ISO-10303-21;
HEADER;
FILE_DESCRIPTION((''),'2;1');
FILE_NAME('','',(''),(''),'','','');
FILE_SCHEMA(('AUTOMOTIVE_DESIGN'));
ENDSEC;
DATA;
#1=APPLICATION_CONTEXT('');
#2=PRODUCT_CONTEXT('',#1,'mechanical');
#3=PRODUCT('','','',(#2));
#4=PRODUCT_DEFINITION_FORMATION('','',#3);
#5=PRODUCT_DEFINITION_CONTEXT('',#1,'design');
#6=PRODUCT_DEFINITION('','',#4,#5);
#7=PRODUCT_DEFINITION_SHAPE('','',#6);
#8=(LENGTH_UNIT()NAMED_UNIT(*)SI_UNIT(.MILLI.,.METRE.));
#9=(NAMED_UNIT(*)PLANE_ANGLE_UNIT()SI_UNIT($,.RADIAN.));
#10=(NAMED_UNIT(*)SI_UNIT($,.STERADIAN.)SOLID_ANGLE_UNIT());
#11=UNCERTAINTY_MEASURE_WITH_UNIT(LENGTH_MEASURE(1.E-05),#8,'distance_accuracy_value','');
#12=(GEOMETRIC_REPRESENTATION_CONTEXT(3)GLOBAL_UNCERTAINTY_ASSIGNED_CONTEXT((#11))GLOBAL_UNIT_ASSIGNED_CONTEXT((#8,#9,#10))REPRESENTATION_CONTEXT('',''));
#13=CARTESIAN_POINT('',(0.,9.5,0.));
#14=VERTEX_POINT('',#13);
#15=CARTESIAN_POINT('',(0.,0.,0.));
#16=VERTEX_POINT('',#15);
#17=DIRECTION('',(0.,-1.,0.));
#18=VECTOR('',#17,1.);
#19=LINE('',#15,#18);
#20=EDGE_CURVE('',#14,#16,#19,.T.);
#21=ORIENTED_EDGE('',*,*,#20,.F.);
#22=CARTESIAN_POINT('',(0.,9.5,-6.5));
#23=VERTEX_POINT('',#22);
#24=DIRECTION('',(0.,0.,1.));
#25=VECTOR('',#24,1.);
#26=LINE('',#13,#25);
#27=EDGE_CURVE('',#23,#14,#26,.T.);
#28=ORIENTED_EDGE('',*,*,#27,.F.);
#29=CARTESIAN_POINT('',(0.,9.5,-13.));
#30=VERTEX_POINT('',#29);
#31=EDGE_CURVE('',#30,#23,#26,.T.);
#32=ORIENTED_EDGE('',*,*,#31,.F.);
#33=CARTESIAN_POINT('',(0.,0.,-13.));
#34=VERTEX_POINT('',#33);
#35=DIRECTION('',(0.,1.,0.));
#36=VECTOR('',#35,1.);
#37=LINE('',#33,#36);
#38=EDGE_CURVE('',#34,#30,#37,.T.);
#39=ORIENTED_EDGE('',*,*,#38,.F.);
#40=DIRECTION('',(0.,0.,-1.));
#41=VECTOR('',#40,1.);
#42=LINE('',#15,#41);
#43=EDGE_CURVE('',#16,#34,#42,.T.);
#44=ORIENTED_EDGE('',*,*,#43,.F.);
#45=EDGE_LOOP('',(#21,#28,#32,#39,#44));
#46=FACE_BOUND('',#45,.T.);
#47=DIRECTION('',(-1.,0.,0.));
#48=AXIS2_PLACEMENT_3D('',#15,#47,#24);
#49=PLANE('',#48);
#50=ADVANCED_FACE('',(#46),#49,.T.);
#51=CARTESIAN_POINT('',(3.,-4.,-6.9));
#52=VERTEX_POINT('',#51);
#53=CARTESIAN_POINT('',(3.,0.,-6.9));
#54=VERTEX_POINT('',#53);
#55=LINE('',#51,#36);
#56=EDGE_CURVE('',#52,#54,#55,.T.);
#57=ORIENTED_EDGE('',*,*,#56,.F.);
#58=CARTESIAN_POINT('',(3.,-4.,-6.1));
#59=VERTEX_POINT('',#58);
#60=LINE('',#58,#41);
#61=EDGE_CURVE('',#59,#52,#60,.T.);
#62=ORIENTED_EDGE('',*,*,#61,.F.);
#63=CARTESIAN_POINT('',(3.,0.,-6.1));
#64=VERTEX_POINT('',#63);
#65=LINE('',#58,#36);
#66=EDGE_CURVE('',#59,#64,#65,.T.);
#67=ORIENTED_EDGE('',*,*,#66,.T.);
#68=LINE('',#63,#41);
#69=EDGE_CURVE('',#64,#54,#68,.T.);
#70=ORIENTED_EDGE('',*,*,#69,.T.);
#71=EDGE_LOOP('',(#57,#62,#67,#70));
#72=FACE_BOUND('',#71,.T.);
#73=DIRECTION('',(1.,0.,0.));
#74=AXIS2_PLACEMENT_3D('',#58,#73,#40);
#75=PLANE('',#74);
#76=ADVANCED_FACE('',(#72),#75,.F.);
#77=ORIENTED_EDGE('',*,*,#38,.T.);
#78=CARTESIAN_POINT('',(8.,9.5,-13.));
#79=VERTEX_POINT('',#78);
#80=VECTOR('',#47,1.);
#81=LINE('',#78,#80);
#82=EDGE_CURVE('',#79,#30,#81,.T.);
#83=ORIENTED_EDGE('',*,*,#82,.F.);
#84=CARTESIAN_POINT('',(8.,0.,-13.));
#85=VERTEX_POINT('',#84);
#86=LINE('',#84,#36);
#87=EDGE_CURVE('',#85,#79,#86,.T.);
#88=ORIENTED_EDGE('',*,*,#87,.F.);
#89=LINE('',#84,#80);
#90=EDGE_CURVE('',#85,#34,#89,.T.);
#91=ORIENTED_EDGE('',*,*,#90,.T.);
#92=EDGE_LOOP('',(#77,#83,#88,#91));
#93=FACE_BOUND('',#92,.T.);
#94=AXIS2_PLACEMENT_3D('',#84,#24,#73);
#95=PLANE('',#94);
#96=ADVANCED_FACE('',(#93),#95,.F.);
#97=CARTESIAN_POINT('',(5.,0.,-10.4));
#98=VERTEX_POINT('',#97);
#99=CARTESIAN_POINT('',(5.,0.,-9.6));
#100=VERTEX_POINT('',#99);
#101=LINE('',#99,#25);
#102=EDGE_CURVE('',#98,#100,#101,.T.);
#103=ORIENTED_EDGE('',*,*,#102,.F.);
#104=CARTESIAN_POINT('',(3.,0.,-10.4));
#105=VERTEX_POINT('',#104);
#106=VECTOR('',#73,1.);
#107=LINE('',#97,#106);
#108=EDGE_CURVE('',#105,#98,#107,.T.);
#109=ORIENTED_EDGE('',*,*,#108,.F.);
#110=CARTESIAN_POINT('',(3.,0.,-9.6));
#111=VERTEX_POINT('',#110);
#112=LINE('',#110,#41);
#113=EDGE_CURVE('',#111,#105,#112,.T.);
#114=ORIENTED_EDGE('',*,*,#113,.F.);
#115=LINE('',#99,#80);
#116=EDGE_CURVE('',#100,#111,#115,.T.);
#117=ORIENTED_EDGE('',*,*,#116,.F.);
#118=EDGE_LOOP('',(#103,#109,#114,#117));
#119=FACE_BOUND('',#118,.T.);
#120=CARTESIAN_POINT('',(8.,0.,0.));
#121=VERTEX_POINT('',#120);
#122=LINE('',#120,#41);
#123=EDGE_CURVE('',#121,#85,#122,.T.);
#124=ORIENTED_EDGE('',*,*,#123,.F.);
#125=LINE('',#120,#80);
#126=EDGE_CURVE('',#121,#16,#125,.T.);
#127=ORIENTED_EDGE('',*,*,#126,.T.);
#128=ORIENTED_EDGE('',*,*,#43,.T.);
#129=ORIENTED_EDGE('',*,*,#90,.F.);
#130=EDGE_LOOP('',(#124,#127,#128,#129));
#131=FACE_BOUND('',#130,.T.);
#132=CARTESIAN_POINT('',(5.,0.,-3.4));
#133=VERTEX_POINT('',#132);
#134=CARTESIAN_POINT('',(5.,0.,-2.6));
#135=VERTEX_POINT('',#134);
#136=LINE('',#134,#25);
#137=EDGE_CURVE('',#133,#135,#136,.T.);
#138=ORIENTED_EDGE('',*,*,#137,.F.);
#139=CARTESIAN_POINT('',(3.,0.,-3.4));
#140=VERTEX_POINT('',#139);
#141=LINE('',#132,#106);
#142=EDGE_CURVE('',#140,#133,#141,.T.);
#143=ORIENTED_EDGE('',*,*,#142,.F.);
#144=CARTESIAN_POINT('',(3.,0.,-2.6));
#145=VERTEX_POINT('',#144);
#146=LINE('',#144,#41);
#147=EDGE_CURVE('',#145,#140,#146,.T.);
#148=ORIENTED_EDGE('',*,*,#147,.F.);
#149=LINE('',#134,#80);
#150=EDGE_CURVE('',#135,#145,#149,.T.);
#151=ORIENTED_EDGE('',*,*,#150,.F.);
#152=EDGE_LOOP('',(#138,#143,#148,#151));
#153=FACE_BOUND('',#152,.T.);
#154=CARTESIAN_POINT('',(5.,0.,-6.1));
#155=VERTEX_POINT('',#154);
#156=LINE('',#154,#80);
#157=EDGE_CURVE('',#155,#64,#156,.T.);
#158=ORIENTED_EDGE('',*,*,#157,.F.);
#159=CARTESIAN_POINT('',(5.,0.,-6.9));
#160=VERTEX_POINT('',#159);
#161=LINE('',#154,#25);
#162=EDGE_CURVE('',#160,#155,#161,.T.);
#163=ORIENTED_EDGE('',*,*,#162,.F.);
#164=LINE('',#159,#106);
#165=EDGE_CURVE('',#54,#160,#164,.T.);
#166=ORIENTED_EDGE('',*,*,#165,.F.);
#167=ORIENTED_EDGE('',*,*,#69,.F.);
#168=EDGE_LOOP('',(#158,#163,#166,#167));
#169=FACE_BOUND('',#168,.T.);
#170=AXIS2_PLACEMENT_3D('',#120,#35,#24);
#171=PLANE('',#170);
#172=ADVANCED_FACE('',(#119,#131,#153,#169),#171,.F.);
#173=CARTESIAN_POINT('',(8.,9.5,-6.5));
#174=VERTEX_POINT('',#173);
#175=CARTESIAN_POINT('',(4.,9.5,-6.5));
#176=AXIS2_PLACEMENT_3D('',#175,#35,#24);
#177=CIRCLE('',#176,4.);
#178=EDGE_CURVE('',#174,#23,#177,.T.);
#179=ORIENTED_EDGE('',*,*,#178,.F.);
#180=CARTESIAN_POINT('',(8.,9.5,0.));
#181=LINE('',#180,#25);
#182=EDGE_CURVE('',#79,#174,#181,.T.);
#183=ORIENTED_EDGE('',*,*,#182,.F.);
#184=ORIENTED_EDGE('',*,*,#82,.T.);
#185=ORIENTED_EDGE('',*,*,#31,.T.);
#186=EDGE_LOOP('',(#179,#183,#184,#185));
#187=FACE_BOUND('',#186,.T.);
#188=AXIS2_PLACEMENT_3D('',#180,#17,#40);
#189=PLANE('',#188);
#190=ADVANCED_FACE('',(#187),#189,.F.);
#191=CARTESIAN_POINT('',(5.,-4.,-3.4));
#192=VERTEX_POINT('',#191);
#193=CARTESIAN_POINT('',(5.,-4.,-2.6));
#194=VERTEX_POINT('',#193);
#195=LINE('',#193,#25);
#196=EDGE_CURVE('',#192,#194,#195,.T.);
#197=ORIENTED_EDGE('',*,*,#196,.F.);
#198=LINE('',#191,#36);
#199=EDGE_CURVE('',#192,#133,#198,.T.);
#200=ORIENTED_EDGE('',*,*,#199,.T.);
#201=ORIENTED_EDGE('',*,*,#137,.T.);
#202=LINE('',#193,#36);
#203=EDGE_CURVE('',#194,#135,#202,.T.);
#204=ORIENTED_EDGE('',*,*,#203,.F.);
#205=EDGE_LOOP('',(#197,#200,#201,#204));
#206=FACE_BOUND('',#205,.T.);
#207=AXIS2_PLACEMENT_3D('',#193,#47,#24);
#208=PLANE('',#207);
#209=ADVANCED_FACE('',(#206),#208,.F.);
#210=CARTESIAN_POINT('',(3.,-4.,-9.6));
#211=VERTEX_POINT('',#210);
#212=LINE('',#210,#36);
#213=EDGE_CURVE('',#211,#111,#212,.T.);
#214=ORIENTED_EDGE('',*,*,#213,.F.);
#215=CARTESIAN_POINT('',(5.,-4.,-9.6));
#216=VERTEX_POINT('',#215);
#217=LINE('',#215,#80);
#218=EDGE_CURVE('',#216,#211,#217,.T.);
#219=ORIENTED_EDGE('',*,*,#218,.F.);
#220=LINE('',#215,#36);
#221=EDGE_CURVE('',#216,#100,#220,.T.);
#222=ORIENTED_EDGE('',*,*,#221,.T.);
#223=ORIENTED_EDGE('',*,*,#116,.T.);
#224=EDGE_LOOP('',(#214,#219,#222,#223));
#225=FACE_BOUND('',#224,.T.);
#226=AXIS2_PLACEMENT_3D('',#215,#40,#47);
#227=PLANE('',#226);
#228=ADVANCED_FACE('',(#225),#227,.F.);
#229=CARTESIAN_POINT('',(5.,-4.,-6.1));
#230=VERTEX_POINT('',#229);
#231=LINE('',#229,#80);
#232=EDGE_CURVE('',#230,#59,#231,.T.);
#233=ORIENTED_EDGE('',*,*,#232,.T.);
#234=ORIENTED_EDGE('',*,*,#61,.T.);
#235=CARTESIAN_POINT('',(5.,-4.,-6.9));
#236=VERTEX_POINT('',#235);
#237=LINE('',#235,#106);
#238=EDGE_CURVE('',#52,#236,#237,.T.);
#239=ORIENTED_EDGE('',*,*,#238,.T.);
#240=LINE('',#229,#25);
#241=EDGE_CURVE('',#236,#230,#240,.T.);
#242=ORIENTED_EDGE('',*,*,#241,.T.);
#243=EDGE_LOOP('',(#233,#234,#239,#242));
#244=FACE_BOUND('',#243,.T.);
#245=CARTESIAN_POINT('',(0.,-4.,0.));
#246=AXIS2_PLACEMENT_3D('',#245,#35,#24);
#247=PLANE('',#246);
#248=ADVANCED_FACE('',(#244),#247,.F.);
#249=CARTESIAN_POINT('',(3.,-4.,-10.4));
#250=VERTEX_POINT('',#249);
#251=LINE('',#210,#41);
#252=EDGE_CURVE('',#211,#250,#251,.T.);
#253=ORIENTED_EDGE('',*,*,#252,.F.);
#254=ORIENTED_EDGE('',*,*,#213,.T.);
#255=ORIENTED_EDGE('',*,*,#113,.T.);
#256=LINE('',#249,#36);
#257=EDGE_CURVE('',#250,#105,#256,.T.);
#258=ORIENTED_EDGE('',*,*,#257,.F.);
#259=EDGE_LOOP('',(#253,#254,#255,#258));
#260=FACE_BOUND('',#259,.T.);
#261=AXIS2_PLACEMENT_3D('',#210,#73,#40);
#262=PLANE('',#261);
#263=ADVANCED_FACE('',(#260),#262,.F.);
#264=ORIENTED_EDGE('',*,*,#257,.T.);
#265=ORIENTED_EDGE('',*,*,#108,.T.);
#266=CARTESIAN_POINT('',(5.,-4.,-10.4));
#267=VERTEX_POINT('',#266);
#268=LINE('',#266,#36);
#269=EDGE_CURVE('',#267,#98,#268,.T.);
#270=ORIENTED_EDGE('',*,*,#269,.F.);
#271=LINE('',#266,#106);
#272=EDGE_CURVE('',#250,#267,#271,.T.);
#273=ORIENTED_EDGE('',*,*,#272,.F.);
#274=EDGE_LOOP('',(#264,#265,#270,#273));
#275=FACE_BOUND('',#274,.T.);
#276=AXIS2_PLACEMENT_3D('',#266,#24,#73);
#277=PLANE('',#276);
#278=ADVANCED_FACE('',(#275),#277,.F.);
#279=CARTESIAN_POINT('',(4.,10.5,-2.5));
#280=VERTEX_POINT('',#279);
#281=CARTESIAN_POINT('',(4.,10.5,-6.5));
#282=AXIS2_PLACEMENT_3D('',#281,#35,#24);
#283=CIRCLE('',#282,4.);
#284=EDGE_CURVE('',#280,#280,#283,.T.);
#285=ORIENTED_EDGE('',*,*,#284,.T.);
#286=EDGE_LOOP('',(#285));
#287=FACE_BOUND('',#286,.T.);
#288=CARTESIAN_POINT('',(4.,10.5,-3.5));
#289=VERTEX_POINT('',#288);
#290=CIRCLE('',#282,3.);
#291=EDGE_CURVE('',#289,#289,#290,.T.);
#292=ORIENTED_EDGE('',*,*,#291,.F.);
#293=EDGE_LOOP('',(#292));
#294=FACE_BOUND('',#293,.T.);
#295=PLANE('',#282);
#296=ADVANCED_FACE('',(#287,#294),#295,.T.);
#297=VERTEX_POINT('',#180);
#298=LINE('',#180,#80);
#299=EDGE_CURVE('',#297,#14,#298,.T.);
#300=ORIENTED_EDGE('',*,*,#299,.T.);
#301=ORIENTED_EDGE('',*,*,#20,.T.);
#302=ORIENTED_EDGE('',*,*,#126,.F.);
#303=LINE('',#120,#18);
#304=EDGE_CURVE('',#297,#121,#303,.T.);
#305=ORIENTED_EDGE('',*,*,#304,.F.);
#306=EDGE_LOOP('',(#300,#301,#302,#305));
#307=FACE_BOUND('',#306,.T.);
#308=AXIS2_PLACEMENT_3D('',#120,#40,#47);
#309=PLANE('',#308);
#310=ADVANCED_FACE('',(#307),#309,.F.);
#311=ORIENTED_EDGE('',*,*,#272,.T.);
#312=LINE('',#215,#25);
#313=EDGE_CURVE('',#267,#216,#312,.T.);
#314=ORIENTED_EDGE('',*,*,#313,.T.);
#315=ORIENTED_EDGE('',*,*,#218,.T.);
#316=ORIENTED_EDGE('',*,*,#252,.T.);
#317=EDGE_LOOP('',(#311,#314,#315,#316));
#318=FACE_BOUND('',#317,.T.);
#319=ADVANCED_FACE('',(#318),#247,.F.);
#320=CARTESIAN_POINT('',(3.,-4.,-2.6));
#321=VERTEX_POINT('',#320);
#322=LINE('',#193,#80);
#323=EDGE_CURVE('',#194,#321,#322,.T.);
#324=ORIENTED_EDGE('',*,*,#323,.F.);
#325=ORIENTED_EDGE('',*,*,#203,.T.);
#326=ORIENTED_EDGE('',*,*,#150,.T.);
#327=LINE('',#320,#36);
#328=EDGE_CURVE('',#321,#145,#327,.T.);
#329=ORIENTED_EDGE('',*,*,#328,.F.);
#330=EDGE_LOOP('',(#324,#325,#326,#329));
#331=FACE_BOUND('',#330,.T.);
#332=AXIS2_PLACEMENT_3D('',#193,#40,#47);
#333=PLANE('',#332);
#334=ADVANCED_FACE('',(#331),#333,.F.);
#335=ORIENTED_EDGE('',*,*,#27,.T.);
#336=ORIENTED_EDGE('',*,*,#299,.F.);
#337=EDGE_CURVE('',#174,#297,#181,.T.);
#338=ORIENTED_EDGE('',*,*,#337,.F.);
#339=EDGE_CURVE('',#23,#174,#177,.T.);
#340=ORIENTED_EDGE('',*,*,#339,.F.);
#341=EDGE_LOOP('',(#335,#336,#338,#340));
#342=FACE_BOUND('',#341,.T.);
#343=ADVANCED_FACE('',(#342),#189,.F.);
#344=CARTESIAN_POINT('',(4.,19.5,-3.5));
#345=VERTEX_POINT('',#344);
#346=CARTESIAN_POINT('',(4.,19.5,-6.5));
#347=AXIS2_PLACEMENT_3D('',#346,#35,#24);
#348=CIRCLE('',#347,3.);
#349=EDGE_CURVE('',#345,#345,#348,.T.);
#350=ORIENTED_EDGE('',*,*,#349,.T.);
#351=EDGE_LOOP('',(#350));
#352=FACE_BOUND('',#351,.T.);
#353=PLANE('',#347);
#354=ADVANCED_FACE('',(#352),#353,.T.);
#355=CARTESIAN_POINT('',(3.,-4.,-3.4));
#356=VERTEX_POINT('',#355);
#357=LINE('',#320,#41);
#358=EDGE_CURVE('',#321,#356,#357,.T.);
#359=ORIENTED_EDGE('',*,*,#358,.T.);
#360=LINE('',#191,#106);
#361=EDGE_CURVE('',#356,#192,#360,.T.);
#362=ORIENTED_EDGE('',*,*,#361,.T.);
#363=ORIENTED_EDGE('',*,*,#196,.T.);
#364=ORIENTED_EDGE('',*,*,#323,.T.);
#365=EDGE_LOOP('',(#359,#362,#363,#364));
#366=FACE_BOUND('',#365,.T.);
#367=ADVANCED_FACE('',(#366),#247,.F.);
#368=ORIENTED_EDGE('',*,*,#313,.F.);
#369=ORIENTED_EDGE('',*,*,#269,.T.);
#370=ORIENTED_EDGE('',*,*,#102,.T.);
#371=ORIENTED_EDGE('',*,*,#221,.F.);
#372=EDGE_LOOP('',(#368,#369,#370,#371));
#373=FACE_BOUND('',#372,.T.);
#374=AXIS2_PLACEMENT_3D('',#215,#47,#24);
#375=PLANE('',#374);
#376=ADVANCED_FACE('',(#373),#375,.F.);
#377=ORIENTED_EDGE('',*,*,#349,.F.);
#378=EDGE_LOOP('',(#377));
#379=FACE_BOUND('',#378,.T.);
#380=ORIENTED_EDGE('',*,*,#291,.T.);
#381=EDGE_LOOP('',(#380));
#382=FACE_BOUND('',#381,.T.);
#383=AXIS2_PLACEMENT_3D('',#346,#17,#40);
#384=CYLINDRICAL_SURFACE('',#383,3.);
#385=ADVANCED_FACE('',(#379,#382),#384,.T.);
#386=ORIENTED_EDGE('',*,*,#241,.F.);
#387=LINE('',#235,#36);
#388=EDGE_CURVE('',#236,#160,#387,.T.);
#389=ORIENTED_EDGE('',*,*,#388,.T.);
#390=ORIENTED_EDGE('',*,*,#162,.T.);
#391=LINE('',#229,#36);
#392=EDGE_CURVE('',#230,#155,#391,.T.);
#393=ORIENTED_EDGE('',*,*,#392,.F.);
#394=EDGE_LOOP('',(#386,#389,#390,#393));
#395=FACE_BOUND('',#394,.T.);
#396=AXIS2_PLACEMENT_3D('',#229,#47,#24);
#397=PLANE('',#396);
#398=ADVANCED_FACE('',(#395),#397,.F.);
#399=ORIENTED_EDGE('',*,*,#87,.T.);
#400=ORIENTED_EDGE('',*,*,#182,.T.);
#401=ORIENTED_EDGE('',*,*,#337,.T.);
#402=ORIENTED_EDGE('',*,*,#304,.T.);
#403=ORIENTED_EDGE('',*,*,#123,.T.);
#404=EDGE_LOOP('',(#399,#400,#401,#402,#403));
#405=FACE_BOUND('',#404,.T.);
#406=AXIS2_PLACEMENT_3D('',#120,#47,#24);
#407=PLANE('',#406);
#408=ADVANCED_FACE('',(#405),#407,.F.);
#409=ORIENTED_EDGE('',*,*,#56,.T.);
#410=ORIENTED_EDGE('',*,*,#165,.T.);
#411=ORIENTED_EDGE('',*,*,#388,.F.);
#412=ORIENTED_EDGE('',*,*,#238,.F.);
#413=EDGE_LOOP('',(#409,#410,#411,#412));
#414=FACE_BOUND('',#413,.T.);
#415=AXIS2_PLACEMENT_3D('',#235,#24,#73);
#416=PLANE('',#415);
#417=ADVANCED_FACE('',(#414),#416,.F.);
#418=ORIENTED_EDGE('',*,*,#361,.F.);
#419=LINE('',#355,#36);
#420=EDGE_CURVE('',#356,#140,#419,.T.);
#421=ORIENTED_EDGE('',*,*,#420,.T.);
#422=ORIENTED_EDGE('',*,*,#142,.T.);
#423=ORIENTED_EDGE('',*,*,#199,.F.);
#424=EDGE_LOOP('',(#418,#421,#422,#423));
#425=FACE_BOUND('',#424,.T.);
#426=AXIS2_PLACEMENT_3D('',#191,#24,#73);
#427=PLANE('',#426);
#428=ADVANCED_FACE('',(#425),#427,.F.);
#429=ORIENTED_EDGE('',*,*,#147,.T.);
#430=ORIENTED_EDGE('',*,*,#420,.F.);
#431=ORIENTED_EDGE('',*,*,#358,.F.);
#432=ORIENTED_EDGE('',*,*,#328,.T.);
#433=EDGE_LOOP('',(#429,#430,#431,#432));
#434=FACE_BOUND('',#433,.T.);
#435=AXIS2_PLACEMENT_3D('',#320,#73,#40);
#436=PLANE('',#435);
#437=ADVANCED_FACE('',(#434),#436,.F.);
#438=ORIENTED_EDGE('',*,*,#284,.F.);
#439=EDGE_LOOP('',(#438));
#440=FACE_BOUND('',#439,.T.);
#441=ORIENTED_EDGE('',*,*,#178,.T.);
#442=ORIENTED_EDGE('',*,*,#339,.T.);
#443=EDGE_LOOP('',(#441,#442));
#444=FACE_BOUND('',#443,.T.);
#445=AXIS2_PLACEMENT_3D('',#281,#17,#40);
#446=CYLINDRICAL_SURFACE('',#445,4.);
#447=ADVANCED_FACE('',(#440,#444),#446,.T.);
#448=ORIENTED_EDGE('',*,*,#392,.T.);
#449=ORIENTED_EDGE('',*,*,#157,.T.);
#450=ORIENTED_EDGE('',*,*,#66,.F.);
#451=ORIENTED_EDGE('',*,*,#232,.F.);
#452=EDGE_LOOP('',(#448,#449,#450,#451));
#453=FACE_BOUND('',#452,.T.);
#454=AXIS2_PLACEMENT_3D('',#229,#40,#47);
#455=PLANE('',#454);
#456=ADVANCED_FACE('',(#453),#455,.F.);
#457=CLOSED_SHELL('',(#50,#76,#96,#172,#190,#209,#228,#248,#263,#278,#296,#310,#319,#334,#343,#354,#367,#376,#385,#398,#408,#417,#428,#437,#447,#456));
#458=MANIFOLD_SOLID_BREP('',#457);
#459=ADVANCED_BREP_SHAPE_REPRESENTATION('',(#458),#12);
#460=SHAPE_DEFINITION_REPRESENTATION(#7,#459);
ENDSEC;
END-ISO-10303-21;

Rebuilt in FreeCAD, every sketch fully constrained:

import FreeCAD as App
import Part
import Sketcher

V = App.Vector
Q = App.Units.Quantity

doc = App.newDocument("Part")
body = doc.addObject("PartDesign::Body", "Body")

# Sketch on YZ plane
sketch1 = body.newObject("Sketcher::SketchObject", "Sketch")
sketch1.AttachmentSupport = (doc.getObject("YZ_Plane"), [""])
sketch1.MapMode = "FlatFace"
sketch1.addGeometry([
    Part.LineSegment(V(10, 0, 0), V(0, 0, 0)),
    Part.LineSegment(V(0, 0, 0), V(0, -13, 0)),
    Part.LineSegment(V(0, -13, 0), V(10, -13, 0)),
    Part.LineSegment(V(10, -13, 0), V(10, 0, 0)),
], False)
sketch1.addConstraint([
    Sketcher.Constraint("Coincident", 0, 2, 1, 1),
    Sketcher.Constraint("Coincident", 1, 2, 2, 1),
    Sketcher.Constraint("Coincident", 2, 2, 3, 1),
    Sketcher.Constraint("Coincident", 3, 2, 0, 1),
    Sketcher.Constraint("Horizontal", 0),
    Sketcher.Constraint("Vertical", 1),
    Sketcher.Constraint("Horizontal", 2),
    Sketcher.Constraint("Vertical", 3),
    Sketcher.Constraint("Coincident", 0, 2, -1, 1),
    Sketcher.Constraint("DistanceY", 1, 2, 1, 1, Q("13 mm")),
    Sketcher.Constraint("DistanceX", 0, 2, 0, 1, Q("9.5 mm")),
])
pad1 = body.newObject("PartDesign::Pad", "Pad")
pad1.Profile = sketch1
pad1.Length = 8

# Sketch on XZ plane
sketch2 = body.newObject("Sketcher::SketchObject", "Sketch001")
sketch2.AttachmentSupport = (doc.getObject("XZ_Plane"), [""])
sketch2.MapMode = "FlatFace"
sketch2.AttachmentOffset = App.Placement(V(0, 0, -9.5), App.Rotation())
sketch2.addGeometry(Part.Circle(V(4, -6.5, 0), V(0, 0, 1), 4), False)
sketch2.addConstraint([
    Sketcher.Constraint("Diameter", 0, Q("8 mm")),
    Sketcher.Constraint("DistanceX", -1, 1, 0, 3, Q("4 mm")),
    Sketcher.Constraint("DistanceY", 0, 3, -1, 1, Q("6.5 mm")),
])
pad2 = body.newObject("PartDesign::Pad", "Pad001")
pad2.Profile = sketch2
pad2.Length = 1
pad2.Reversed = True

# Sketch on XZ plane
sketch3 = body.newObject("Sketcher::SketchObject", "Sketch002")
sketch3.AttachmentSupport = (doc.getObject("XZ_Plane"), [""])
sketch3.MapMode = "FlatFace"
sketch3.AttachmentOffset = App.Placement(V(0, 0, -10.5), App.Rotation())
sketch3.addGeometry(Part.Circle(V(4, -6.5, 0), V(0, 0, 1), 3), False)
sketch3.addConstraint([
    Sketcher.Constraint("Diameter", 0, Q("6 mm")),
    Sketcher.Constraint("DistanceX", -1, 1, 0, 3, Q("4 mm")),
    Sketcher.Constraint("DistanceY", 0, 3, -1, 1, Q("6.5 mm")),
])
pad3 = body.newObject("PartDesign::Pad", "Pad002")
pad3.Profile = sketch3
pad3.Length = 9
pad3.Reversed = True

# Sketch on XZ plane
sketch4 = body.newObject("Sketcher::SketchObject", "Sketch003")
sketch4.AttachmentSupport = (doc.getObject("XZ_Plane"), [""])
sketch4.MapMode = "FlatFace"
sketch4.addGeometry([
    Part.LineSegment(V(3, -2.6, 0), V(3, -3.4, 0)),  # 0
    Part.LineSegment(V(3, -3.4, 0), V(5, -3.4, 0)),  # 1
    Part.LineSegment(V(5, -3.4, 0), V(5, -2.6, 0)),  # 2
    Part.LineSegment(V(5, -2.6, 0), V(3, -2.6, 0)),  # 3
    Part.LineSegment(V(3, -6.1, 0), V(3, -6.9, 0)),  # 4
    Part.LineSegment(V(3, -6.9, 0), V(5, -6.9, 0)),  # 5
    Part.LineSegment(V(5, -6.9, 0), V(5, -6.1, 0)),  # 6
    Part.LineSegment(V(5, -6.1, 0), V(3, -6.1, 0)),  # 7
    Part.LineSegment(V(3, -9.6, 0), V(3, -10.4, 0)),  # 8
    Part.LineSegment(V(3, -10.4, 0), V(5, -10.4, 0)),  # 9
    Part.LineSegment(V(5, -10.4, 0), V(5, -9.6, 0)),  # 10
    Part.LineSegment(V(5, -9.6, 0), V(3, -9.6, 0)),  # 11
], False)
sketch4.addConstraint([
    Sketcher.Constraint("Coincident", 0, 2, 1, 1),
    Sketcher.Constraint("Coincident", 1, 2, 2, 1),
    Sketcher.Constraint("Coincident", 2, 2, 3, 1),
    Sketcher.Constraint("Coincident", 3, 2, 0, 1),
    Sketcher.Constraint("Coincident", 4, 2, 5, 1),
    Sketcher.Constraint("Coincident", 5, 2, 6, 1),
    Sketcher.Constraint("Coincident", 6, 2, 7, 1),
    Sketcher.Constraint("Coincident", 7, 2, 4, 1),
    Sketcher.Constraint("Coincident", 8, 2, 9, 1),
    Sketcher.Constraint("Coincident", 9, 2, 10, 1),
    Sketcher.Constraint("Coincident", 10, 2, 11, 1),
    Sketcher.Constraint("Coincident", 11, 2, 8, 1),
    Sketcher.Constraint("Vertical", 0),
    Sketcher.Constraint("Horizontal", 1),
    Sketcher.Constraint("Vertical", 2),
    Sketcher.Constraint("Horizontal", 3),
    Sketcher.Constraint("Vertical", 4),
    Sketcher.Constraint("Horizontal", 5),
    Sketcher.Constraint("Vertical", 6),
    Sketcher.Constraint("Horizontal", 7),
    Sketcher.Constraint("Vertical", 8),
    Sketcher.Constraint("Horizontal", 9),
    Sketcher.Constraint("Vertical", 10),
    Sketcher.Constraint("Horizontal", 11),
    Sketcher.Constraint("Vertical", 3, 2, 4, 2),
    Sketcher.Constraint("Vertical", 2, 2, 5, 2),
    Sketcher.Constraint("Vertical", 7, 2, 8, 2),
    Sketcher.Constraint("Vertical", 6, 2, 9, 2),
    Sketcher.Constraint("Equal", 2, 4),
    Sketcher.Constraint("Equal", 6, 8),
    Sketcher.Constraint("DistanceX", 1, 1, 1, 2, Q("2 mm")),
    Sketcher.Constraint("DistanceY", 0, 2, 0, 1, Q("0.8 mm")),
    Sketcher.Constraint("DistanceX", -1, 1, 0, 2, Q("3 mm")),
    Sketcher.Constraint("DistanceY", 8, 2, 0, 2, Q("7 mm")),
    Sketcher.Constraint("DistanceY", 0, 2, -1, 1, Q("3.4 mm")),
    Sketcher.Constraint("DistanceY", 4, 2, -1, 1, Q("6.9 mm")),
])
pad4 = body.newObject("PartDesign::Pad", "Pad003")
pad4.Profile = sketch4
pad4.Length = 4

doc.recompute()
